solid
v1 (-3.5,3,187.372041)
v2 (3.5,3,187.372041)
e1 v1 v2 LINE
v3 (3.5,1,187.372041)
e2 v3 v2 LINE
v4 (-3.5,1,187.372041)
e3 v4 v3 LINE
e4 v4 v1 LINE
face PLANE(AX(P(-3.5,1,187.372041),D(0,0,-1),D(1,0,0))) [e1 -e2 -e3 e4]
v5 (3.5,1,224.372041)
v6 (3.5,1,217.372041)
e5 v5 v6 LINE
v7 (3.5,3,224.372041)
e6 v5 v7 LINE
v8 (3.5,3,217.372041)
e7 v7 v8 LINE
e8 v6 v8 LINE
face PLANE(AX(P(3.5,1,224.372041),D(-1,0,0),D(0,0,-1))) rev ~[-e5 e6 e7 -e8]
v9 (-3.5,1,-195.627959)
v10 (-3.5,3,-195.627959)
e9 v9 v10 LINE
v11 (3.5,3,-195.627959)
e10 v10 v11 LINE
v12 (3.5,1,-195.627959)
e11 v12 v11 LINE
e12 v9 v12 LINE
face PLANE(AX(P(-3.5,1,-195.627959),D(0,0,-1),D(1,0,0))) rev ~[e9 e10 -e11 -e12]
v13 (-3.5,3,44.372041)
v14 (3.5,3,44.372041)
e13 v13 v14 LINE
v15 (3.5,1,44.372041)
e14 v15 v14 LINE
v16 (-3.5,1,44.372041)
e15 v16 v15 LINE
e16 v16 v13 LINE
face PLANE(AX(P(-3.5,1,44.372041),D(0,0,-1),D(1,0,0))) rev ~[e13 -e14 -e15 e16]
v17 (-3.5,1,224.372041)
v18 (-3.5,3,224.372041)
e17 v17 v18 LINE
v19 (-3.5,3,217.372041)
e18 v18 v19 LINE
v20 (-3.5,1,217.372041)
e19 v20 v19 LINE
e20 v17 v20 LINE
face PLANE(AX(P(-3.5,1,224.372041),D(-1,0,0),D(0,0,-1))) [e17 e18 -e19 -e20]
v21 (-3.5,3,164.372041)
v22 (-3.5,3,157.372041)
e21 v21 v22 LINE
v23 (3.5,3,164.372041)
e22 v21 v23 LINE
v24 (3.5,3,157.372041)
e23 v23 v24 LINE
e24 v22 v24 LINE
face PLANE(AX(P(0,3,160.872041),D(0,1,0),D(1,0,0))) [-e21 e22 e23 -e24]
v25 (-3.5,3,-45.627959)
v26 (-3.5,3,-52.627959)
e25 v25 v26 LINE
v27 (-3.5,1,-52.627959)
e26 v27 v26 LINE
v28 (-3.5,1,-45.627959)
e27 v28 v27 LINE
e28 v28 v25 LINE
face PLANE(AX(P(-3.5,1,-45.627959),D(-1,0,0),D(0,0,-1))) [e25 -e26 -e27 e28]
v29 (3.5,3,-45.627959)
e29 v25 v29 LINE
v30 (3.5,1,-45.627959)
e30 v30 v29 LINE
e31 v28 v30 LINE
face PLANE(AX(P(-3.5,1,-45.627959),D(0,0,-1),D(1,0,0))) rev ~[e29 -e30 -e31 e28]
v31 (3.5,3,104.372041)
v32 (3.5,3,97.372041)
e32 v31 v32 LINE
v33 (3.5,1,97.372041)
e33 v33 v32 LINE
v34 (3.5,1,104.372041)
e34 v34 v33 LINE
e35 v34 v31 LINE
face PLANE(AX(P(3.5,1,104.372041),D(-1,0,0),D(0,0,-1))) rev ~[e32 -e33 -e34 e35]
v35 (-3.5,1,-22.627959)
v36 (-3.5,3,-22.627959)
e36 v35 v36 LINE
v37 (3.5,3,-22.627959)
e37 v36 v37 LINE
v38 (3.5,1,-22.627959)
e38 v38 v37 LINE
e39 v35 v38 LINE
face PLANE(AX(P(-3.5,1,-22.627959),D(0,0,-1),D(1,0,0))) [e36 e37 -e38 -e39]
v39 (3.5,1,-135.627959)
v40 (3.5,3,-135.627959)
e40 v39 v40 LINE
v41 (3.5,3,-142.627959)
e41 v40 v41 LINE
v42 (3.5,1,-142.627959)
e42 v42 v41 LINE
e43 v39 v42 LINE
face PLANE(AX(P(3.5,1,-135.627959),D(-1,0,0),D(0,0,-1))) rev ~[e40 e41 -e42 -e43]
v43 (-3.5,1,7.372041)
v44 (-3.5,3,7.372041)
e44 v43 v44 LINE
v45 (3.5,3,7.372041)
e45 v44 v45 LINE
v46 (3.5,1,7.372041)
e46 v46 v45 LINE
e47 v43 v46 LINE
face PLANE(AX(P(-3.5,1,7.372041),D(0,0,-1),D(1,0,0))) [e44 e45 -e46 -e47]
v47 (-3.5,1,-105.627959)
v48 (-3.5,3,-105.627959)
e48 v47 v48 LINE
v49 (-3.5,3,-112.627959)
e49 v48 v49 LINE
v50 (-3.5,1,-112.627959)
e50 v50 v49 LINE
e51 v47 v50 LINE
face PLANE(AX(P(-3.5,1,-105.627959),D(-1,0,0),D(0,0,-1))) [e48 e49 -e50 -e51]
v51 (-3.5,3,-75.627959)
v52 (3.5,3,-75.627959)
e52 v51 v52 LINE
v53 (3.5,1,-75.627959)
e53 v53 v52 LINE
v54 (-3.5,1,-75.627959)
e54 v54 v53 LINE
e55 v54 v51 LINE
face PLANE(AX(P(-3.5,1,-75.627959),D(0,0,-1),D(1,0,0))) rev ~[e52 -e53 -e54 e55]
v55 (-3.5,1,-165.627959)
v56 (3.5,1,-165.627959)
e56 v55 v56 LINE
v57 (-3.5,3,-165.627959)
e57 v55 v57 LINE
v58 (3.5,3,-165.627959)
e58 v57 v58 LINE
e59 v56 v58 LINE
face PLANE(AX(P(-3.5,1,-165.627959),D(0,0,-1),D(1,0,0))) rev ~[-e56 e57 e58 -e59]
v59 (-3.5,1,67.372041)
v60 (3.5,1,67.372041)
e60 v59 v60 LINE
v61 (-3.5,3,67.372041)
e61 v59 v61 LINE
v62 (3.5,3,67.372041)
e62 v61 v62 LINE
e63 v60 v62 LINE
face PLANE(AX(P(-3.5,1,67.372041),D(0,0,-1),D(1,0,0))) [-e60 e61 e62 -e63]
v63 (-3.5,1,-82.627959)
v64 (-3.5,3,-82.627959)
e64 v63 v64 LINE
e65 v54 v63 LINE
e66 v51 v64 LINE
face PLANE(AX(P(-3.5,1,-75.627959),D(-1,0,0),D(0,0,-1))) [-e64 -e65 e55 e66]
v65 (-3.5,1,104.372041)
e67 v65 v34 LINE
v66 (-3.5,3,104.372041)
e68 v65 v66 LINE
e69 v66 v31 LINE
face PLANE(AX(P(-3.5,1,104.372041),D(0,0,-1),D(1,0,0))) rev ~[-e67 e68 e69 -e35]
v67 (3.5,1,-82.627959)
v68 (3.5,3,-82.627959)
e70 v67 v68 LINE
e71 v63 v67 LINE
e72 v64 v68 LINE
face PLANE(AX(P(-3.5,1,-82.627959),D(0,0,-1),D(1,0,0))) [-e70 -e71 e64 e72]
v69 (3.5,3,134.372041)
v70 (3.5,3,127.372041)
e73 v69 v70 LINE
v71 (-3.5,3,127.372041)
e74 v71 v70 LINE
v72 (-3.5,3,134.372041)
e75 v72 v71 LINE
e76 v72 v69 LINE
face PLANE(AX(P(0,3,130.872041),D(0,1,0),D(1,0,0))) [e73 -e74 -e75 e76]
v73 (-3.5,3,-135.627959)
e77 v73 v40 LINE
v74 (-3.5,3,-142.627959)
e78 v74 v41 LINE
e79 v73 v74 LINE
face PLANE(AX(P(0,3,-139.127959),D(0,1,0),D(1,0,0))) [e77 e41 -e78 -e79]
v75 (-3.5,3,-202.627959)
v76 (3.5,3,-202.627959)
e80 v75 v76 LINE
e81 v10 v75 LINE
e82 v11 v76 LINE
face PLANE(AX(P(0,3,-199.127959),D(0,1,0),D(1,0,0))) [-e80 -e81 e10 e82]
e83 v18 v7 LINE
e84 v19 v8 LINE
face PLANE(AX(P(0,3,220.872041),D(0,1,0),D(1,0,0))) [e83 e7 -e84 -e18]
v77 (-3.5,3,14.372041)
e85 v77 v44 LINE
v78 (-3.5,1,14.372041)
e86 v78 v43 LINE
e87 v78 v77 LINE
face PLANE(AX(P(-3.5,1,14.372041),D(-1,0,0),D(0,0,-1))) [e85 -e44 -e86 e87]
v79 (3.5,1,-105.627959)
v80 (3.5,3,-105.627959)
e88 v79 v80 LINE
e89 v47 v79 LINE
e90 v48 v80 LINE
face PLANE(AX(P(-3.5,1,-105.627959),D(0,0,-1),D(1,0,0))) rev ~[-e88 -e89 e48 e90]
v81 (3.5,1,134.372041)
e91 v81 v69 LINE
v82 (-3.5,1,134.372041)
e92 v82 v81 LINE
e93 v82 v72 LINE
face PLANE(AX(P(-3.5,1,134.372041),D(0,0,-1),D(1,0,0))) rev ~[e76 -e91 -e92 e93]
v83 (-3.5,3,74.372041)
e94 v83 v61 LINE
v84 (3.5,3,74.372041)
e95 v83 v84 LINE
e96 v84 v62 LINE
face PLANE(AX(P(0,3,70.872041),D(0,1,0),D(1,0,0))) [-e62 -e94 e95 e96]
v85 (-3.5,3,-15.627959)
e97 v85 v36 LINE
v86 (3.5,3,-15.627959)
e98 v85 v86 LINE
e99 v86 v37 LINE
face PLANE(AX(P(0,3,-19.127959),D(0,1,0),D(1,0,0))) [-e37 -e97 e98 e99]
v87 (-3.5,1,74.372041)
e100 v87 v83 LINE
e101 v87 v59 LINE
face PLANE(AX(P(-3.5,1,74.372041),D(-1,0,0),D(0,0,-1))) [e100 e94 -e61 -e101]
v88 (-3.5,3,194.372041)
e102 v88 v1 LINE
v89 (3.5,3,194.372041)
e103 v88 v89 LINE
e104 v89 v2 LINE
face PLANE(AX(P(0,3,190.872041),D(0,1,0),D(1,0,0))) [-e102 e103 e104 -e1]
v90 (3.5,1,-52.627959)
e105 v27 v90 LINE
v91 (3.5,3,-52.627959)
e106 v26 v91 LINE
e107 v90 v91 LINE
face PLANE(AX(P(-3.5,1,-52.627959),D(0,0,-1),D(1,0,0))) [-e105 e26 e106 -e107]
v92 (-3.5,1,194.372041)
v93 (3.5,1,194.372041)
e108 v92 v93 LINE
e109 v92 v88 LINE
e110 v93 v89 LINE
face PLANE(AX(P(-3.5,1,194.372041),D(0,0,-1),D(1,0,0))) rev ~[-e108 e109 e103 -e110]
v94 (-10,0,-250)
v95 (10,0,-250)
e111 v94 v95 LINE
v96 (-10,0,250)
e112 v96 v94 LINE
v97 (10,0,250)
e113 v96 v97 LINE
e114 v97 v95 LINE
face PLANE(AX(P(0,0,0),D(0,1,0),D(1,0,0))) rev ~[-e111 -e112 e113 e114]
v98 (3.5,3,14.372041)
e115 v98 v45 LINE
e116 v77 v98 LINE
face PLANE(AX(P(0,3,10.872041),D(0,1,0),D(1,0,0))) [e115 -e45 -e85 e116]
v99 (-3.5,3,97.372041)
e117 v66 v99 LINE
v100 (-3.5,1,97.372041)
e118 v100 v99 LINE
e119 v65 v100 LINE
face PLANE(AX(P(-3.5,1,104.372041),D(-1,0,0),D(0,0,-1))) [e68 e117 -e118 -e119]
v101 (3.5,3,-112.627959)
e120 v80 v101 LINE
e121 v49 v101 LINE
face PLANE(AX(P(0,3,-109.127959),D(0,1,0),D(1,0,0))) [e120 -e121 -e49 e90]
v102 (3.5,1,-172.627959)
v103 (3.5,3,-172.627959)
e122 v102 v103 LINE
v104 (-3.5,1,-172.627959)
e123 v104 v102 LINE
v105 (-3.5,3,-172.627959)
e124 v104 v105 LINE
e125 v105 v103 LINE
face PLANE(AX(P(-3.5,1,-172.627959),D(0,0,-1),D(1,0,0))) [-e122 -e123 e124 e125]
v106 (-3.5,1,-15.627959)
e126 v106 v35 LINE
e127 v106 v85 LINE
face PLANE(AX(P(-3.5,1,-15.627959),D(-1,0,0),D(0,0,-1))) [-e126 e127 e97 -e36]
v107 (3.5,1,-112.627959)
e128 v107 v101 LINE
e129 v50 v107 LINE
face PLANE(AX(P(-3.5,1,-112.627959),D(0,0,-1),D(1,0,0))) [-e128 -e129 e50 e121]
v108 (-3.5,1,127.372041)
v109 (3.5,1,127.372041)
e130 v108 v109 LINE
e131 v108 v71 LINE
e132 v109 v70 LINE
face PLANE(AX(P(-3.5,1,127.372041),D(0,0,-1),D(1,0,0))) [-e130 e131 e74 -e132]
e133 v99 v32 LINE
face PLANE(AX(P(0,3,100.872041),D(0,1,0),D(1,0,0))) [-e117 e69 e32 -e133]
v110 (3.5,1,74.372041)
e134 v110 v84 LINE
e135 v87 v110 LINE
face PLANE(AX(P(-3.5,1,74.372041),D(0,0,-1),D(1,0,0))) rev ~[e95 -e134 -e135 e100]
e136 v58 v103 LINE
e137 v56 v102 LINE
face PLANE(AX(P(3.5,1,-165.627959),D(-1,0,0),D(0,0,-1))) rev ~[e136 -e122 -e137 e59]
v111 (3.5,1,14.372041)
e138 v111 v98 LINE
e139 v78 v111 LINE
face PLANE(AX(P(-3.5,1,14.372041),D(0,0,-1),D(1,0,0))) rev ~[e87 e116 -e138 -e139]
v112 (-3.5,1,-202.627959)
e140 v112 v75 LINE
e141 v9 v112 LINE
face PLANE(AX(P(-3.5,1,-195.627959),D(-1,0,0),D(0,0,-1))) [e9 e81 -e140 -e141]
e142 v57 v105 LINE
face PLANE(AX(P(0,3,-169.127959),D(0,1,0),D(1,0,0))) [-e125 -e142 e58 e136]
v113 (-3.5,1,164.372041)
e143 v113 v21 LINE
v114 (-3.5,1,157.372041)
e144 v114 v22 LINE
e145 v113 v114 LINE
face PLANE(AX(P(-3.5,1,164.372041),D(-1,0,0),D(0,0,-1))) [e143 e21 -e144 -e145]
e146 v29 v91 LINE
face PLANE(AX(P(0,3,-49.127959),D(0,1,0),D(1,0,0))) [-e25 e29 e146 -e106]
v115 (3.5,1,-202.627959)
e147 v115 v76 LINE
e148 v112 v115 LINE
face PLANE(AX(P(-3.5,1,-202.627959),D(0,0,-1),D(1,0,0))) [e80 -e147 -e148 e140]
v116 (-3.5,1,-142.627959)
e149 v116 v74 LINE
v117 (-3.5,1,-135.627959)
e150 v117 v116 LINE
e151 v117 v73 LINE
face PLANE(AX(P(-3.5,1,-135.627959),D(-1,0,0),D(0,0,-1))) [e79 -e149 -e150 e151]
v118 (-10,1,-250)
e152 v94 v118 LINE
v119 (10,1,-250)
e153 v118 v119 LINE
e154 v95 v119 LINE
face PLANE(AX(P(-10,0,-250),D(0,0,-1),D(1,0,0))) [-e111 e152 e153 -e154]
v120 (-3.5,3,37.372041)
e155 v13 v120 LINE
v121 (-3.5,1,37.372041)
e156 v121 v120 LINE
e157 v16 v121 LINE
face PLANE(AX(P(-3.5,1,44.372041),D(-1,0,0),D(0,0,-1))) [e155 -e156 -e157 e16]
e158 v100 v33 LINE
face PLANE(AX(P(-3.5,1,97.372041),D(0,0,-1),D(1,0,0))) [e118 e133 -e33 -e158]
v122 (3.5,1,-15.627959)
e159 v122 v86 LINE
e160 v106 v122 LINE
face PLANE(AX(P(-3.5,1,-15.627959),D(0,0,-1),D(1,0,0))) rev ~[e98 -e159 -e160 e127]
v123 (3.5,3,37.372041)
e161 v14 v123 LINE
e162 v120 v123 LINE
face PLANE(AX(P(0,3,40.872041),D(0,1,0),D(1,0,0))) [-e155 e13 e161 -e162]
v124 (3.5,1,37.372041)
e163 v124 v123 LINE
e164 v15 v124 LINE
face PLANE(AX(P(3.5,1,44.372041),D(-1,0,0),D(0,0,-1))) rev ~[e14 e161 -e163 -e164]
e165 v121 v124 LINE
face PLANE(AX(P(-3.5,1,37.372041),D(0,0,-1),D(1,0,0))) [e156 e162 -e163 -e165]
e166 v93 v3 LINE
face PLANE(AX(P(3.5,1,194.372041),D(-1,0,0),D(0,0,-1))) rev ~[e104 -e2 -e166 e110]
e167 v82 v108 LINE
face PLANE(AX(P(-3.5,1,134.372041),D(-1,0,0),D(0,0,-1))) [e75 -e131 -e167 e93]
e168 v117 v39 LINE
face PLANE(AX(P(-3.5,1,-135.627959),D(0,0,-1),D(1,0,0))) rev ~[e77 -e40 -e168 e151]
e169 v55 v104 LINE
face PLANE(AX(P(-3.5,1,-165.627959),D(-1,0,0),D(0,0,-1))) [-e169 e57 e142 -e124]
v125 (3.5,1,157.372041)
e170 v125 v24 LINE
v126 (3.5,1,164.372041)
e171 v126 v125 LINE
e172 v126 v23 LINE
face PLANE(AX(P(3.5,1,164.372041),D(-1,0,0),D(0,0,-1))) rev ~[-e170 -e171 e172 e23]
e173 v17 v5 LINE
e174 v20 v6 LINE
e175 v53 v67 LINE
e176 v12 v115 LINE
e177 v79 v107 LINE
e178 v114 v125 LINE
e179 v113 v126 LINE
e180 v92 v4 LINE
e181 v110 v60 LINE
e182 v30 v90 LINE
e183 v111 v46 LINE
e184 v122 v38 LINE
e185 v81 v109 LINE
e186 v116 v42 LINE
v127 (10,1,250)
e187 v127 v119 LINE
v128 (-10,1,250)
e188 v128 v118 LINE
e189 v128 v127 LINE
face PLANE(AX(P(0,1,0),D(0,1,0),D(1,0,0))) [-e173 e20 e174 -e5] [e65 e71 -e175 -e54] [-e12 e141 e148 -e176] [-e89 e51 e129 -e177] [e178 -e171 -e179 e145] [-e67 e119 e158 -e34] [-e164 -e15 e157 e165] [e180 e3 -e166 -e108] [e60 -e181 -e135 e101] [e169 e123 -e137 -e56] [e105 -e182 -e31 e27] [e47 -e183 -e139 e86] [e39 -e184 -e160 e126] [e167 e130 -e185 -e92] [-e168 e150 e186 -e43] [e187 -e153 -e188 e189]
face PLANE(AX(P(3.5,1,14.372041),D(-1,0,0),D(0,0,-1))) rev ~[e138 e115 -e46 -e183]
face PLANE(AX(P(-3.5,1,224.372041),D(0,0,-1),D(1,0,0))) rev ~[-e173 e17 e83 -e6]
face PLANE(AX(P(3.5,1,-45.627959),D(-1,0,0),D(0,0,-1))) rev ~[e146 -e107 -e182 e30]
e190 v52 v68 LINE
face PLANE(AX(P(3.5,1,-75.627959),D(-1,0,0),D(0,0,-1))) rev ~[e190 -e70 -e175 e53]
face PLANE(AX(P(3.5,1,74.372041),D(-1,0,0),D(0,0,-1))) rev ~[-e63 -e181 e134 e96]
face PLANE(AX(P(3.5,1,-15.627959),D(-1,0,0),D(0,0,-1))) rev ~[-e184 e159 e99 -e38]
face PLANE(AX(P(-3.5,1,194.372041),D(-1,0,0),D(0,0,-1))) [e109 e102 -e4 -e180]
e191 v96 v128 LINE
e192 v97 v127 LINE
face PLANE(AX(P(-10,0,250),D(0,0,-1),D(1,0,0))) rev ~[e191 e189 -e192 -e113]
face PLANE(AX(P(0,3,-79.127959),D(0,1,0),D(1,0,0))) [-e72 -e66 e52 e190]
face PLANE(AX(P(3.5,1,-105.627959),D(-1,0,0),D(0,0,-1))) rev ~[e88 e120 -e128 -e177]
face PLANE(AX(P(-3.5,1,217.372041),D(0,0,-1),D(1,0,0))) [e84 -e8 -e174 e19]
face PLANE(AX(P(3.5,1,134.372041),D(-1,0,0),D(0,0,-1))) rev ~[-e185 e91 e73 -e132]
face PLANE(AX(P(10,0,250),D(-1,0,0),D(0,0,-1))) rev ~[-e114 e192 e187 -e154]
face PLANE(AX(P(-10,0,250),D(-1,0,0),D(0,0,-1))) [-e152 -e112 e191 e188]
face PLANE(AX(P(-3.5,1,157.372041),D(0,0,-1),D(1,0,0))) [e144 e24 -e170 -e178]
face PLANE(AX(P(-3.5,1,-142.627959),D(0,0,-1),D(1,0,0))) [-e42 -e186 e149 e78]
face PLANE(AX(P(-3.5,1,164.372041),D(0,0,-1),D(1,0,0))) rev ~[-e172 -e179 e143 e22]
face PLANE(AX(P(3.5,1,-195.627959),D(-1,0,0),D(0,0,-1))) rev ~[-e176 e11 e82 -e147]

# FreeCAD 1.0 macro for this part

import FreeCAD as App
import Part
import Sketcher

V = App.Vector

doc = App.newDocument("Part")
body = doc.addObject("PartDesign::Body", "Body")

# Sketch on XZ plane
sketch1 = body.newObject("Sketcher::SketchObject", "Sketch")
sketch1.AttachmentSupport = (doc.getObject("XZ_Plane"), [""])
sketch1.MapMode = "FlatFace"
sketch1.addGeometry([
    Part.LineSegment(V(-10, -250, 0), V(-10, 250, 0)),
    Part.LineSegment(V(-10, 250, 0), V(10, 250, 0)),
    Part.LineSegment(V(10, 250, 0), V(10, -250, 0)),
    Part.LineSegment(V(10, -250, 0), V(-10, -250, 0)),
], False)
sketch1.addConstraint([
    Sketcher.Constraint("Coincident", 0, 2, 1, 1),
    Sketcher.Constraint("Coincident", 1, 2, 2, 1),
    Sketcher.Constraint("Coincident", 2, 2, 3, 1),
    Sketcher.Constraint("Coincident", 3, 2, 0, 1),
    Sketcher.Constraint("Vertical", 0),
    Sketcher.Constraint("Horizontal", 1),
    Sketcher.Constraint("Vertical", 2),
    Sketcher.Constraint("Horizontal", 3),
    Sketcher.Constraint("Symmetric", 0, 2, 2, 2, -1, 1),
    Sketcher.Constraint("DistanceX", 1, 1, 1, 2, 20.0),
    Sketcher.Constraint("DistanceY", 0, 1, 0, 2, 500.0),
])
pad1 = body.newObject("PartDesign::Pad", "Pad")
pad1.Profile = sketch1
pad1.Length = 1
pad1.Reversed = True

# Sketch on XZ plane
sketch2 = body.newObject("Sketcher::SketchObject", "Sketch001")
sketch2.AttachmentSupport = (doc.getObject("XZ_Plane"), [""])
sketch2.MapMode = "FlatFace"
sketch2.AttachmentOffset = App.Placement(V(0, 0, -1), App.Rotation())
sketch2.addGeometry([
    Part.LineSegment(V(-4, -23, 0), V(-4, -16, 0)),
    Part.LineSegment(V(-4, -16, 0), V(4, -16, 0)),
    Part.LineSegment(V(4, -16, 0), V(4, -23, 0)),
    Part.LineSegment(V(4, -23, 0), V(-4, -23, 0)),
], False)
sketch2.addConstraint([
    Sketcher.Constraint("Coincident", 0, 2, 1, 1),
    Sketcher.Constraint("Coincident", 1, 2, 2, 1),
    Sketcher.Constraint("Coincident", 2, 2, 3, 1),
    Sketcher.Constraint("Coincident", 3, 2, 0, 1),
    Sketcher.Constraint("Vertical", 0),
    Sketcher.Constraint("Horizontal", 1),
    Sketcher.Constraint("Vertical", 2),
    Sketcher.Constraint("Horizontal", 3),
    Sketcher.Constraint("Equal", 3, 0),
    Sketcher.Constraint("DistanceX", 1, 1, 1, 2, 7.0),
    Sketcher.Constraint("DistanceX", 0, 2, -1, 1, 3.5),
    Sketcher.Constraint("DistanceY", 0, 2, -1, 1, 15.627959),
])
pad2 = body.newObject("PartDesign::Pad", "Pad001")
pad2.Profile = sketch2
pad2.Length = 2
pad2.Reversed = True
doc.recompute()

linearpattern = body.newObject("PartDesign::LinearPattern", "LinearPattern")
linearpattern.Originals = [pad2]
linearpattern.Direction = (doc.getObject("Z_Axis"), [""])
linearpattern.Mode = "offset"
linearpattern.Offset = 30
linearpattern.Occurrences = 7
linearpattern.Reversed = True
body.Tip = linearpattern
doc.recompute()

linearpattern2 = body.newObject("PartDesign::LinearPattern", "LinearPattern001")
linearpattern2.Originals = [pad2]
linearpattern2.Direction = (doc.getObject("Z_Axis"), [""])
linearpattern2.Mode = "offset"
linearpattern2.Offset = 30
linearpattern2.Occurrences = 9
body.Tip = linearpattern2

doc.recompute()
